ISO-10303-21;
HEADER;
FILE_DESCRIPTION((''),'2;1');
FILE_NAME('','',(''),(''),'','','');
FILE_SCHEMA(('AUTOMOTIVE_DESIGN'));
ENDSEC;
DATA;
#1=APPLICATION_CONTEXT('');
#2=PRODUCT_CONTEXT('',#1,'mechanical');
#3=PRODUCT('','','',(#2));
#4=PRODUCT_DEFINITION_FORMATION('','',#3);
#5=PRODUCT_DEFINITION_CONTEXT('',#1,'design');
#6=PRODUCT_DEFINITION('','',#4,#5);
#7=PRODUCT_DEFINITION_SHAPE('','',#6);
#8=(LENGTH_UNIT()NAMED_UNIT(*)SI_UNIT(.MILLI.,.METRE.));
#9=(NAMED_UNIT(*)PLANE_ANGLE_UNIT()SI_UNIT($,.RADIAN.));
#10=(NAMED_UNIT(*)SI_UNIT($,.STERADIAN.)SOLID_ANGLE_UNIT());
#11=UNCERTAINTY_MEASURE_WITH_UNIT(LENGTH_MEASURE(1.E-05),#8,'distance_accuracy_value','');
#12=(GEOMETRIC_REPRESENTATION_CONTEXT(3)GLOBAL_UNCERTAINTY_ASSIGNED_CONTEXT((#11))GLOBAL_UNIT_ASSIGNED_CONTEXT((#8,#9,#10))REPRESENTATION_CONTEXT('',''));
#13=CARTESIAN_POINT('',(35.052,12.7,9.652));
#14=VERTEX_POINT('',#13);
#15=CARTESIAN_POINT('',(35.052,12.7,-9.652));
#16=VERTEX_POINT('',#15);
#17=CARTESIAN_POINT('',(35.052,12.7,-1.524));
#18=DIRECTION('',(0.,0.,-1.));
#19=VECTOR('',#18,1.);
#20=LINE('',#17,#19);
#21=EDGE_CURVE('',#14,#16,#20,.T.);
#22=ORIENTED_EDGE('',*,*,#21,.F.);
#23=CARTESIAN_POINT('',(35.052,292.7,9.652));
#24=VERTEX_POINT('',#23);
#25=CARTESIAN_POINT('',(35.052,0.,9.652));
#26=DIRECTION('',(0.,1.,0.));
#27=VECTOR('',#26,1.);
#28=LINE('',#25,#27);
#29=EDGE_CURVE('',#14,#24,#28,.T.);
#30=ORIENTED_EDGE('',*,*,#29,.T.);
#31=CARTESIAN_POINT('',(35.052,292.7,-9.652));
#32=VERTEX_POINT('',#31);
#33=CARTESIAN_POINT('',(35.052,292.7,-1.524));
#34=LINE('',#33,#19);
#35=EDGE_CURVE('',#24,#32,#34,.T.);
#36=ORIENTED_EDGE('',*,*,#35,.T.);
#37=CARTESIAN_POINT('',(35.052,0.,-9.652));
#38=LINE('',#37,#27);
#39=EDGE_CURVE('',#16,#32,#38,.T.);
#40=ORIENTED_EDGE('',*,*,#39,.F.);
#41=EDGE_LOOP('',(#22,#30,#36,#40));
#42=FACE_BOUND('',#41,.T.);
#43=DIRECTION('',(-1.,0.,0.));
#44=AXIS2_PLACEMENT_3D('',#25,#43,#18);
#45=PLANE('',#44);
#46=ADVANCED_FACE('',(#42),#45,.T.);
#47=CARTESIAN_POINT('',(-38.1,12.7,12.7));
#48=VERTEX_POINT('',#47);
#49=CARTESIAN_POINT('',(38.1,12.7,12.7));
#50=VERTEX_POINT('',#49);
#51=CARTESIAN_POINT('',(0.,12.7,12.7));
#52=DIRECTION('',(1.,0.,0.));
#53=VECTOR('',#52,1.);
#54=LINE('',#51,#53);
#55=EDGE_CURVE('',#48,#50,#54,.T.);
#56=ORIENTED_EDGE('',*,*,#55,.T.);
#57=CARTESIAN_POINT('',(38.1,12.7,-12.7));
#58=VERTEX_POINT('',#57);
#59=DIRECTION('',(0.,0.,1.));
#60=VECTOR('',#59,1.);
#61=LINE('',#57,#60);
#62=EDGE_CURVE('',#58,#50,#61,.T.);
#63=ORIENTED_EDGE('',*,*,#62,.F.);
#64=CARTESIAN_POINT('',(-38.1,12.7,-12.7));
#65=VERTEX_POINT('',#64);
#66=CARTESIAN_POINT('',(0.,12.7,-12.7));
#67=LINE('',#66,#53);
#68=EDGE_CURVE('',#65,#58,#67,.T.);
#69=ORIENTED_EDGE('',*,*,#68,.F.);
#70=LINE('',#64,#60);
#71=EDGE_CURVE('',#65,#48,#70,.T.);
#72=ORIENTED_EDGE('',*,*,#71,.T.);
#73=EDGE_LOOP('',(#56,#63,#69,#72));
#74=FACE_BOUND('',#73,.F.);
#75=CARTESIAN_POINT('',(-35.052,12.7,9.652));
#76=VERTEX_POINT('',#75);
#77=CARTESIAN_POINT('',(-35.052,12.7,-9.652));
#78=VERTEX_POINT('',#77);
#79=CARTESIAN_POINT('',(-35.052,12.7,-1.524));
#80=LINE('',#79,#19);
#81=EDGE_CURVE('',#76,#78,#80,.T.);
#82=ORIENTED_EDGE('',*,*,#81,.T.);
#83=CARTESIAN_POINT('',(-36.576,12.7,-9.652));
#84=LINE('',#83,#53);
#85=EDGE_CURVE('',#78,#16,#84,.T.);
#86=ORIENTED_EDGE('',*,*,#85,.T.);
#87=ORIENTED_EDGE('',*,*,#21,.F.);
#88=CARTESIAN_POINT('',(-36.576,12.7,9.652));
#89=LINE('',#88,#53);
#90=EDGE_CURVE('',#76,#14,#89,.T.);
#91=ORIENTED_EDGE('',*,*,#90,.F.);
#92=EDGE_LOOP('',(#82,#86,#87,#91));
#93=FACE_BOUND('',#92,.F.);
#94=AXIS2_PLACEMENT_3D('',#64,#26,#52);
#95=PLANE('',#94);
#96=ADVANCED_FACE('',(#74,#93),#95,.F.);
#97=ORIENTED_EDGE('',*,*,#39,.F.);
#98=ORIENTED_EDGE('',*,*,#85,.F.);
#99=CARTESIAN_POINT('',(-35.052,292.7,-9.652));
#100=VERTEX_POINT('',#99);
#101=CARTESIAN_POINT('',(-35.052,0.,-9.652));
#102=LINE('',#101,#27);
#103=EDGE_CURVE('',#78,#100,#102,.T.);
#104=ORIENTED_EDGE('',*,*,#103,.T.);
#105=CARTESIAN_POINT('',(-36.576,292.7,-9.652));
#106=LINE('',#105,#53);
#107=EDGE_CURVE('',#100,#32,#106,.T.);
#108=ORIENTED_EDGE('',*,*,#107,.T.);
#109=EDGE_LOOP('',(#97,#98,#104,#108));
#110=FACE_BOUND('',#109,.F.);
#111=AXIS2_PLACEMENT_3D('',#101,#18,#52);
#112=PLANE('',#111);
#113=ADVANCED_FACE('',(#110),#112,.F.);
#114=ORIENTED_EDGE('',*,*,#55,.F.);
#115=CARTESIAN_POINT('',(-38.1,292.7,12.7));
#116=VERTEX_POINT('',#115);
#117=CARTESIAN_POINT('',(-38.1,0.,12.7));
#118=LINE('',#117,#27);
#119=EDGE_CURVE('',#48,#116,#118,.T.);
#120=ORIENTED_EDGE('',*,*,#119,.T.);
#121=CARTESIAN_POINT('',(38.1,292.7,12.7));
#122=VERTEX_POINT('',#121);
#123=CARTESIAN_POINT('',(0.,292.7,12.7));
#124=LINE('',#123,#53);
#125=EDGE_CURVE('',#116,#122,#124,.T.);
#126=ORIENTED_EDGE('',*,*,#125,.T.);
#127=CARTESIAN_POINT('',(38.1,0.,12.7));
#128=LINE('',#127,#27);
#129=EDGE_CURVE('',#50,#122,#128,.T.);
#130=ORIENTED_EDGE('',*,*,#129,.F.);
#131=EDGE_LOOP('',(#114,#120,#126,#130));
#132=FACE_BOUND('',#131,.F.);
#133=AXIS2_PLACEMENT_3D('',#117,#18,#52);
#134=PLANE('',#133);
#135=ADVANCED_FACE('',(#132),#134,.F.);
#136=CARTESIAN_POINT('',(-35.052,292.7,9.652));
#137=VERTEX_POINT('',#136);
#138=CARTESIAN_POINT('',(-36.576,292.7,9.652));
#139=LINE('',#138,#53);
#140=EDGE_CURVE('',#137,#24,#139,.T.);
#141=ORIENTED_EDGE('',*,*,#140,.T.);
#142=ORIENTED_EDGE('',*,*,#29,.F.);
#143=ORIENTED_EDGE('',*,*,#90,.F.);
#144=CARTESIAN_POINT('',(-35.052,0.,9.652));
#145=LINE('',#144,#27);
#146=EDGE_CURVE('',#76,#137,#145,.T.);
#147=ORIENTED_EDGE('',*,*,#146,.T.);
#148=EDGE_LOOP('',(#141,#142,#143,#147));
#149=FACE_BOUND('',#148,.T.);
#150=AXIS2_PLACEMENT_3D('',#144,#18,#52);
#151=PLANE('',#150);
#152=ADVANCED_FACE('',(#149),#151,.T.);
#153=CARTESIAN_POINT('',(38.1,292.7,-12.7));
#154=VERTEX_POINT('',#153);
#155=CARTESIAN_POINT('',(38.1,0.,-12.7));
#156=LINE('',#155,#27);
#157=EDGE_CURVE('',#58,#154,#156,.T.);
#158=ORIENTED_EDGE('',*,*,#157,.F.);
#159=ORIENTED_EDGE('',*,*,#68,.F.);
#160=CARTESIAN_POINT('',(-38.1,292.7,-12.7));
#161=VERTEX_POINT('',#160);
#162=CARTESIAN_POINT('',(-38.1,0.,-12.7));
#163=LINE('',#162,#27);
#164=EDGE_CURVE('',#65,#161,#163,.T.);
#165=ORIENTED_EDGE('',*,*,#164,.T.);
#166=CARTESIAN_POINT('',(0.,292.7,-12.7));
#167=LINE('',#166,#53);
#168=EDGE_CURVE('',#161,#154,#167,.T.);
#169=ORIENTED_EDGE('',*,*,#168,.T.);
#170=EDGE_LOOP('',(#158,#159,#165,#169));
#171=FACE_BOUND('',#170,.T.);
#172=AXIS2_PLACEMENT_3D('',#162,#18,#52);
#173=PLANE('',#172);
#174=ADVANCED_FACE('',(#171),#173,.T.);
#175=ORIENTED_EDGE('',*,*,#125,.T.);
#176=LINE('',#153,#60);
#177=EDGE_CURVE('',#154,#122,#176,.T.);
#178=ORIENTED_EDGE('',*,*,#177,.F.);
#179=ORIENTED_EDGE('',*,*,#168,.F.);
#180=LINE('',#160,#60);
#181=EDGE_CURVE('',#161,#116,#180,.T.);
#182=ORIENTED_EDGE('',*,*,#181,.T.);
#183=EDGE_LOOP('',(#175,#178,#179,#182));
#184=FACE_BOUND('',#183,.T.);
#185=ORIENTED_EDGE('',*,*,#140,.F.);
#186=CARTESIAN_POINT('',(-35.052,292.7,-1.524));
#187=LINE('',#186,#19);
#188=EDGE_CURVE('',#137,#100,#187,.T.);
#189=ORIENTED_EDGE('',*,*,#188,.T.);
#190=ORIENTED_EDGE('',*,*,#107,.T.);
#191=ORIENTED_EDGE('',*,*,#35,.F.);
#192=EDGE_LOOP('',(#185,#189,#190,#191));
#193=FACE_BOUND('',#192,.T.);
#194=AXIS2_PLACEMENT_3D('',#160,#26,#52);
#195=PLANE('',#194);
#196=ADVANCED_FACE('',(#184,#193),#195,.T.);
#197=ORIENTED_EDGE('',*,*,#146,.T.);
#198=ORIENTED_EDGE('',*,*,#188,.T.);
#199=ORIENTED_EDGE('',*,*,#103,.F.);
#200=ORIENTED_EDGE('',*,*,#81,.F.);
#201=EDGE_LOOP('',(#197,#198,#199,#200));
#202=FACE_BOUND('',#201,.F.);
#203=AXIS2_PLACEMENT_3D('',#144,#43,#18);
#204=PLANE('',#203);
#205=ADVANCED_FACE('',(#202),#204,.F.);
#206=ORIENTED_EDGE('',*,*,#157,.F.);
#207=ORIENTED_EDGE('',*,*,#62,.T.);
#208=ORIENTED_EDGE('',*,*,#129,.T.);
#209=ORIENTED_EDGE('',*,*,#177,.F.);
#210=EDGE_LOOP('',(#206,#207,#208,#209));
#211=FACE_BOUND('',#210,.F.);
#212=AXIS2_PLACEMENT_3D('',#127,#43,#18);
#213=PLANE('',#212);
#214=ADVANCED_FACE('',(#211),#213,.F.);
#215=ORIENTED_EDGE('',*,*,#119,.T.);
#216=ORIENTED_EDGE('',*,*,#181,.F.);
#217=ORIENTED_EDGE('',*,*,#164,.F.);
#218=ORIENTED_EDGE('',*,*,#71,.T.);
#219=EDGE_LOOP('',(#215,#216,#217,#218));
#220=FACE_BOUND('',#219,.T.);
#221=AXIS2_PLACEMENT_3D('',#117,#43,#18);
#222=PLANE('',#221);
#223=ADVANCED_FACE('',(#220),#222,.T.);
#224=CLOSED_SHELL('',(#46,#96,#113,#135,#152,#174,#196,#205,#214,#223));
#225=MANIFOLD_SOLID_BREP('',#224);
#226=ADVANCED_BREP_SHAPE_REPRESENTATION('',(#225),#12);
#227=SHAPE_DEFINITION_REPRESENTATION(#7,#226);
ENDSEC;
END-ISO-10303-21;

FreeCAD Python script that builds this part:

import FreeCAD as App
import Part
import Sketcher
from FreeCAD import Vector
Q = App.Units.Quantity


def add_polygon(sketch, points):
    """Adds a closed chain of lines whose ends are joined by coincident constraints."""
    first, n = sketch.GeometryCount, len(points)
    for a, b in zip(points, points[1:] + points[:1]):
        sketch.addGeometry(Part.LineSegment(App.Vector(*a, 0), App.Vector(*b, 0)), False)
    for i in range(n):
        sketch.addConstraint(Sketcher.Constraint("Coincident", first + i, 2, first + (i + 1) % n, 1))

doc = App.newDocument("Part")
params = doc.addObject("Spreadsheet::Sheet", "Params")
for row, (alias, value) in enumerate([
    ("sketch1_width", "3 in"),
    ("sketch1_height", "1 in"),
    ("sketch1_width2", "2.76 in"),
    ("sketch1_height2", "0.76 in"),
    ("pad1_length", "305.4 mm"),
    ("sketch2_width", "3 in"),
    ("sketch2_height", "1 in"),
    ("pocket1_length", "1 in"),
    ("sketch3_width", "3 in"),
    ("sketch3_height", "1 in"),
    ("pocket2_length", "1 in"),
], start=1):
    params.set(f"A{row}", alias)
    params.set(f"B{row}", "=" + value)
    params.setAlias(f"B{row}", alias)

body = doc.addObject("PartDesign::Body", "Body")

# Sketch on XZ plane
sketch1 = body.newObject("Sketcher::SketchObject", "Sketch")
sketch1.AttachmentSupport = (doc.getObject("XZ_Plane"), [""])
sketch1.MapMode = "FlatFace"
add_polygon(sketch1, [(-38.1, -12.7), (-38.1, 12.7), (38.1, 12.7), (38.1, -12.7)])  # lines 0-3
add_polygon(sketch1, [(35.052, 9.652), (-35.052, 9.652), (-35.052, -9.652), (35.052, -9.652)])  # lines 4-7
sketch1.addConstraint([
    Sketcher.Constraint("Vertical", 0),
    Sketcher.Constraint("Horizontal", 1),
    Sketcher.Constraint("Vertical", 2),
    Sketcher.Constraint("Horizontal", 3),
    Sketcher.Constraint("Horizontal", 4),
    Sketcher.Constraint("Vertical", 5),
    Sketcher.Constraint("Horizontal", 6),
    Sketcher.Constraint("Vertical", 7),
    Sketcher.Constraint("Symmetric", 0, 2, 2, 2, -1, 1),
    Sketcher.Constraint("Symmetric", 4, 2, 6, 2, -1, 1),
    Sketcher.Constraint("DistanceX", 1, 1, 1, 2, Q("3 in")),
    Sketcher.Constraint("DistanceY", 0, 1, 0, 2, Q("1 in")),
    Sketcher.Constraint("DistanceX", 4, 2, 4, 1, Q("2.76 in")),
    Sketcher.Constraint("DistanceY", 5, 2, 5, 1, Q("0.76 in")),
])
sketch1.setExpression("Constraints[18]", "Params.sketch1_width")
sketch1.setExpression("Constraints[19]", "Params.sketch1_height")
sketch1.setExpression("Constraints[20]", "Params.sketch1_width2")
sketch1.setExpression("Constraints[21]", "Params.sketch1_height2")
pad1 = body.newObject("PartDesign::Pad", "Pad")
pad1.Profile = sketch1
pad1.setExpression("Length", "Params.pad1_length")
pad1.Reversed = True

# Sketch on XY plane
sketch2 = body.newObject("Sketcher::SketchObject", "Sketch001")
sketch2.AttachmentSupport = (doc.getObject("XY_Plane"), [""])
sketch2.MapMode = "FlatFace"
sketch2.AttachmentOffset = App.Placement(Vector(0, 0, -0.5 * 25.4), App.Rotation())
add_polygon(sketch2, [(-38.1, 12.7), (-38.1, -12.7), (38.1, -12.7), (38.1, 12.7)])  # lines 0-3
sketch2.addConstraint([
    Sketcher.Constraint("Vertical", 0),
    Sketcher.Constraint("Horizontal", 1),
    Sketcher.Constraint("Vertical", 2),
    Sketcher.Constraint("Horizontal", 3),
    Sketcher.Constraint("Symmetric", 0, 2, 2, 2, -1, 1),
    Sketcher.Constraint("DistanceX", 1, 1, 1, 2, Q("3 in")),
    Sketcher.Constraint("DistanceY", 0, 2, 0, 1, Q("1 in")),
])
sketch2.setExpression("Constraints[9]", "Params.sketch2_width")
sketch2.setExpression("Constraints[10]", "Params.sketch2_height")
pocket1 = body.newObject("PartDesign::Pocket", "Pocket")
pocket1.Profile = sketch2
pocket1.setExpression("Length", "Params.pocket1_length")
pocket1.Reversed = True

# Sketch on XY plane
sketch3 = body.newObject("Sketcher::SketchObject", "Sketch002")
sketch3.AttachmentSupport = (doc.getObject("XY_Plane"), [""])
sketch3.MapMode = "FlatFace"
sketch3.AttachmentOffset = App.Placement(Vector(0, 0, -0.5 * 25.4), App.Rotation())
add_polygon(sketch3, [(-38.1, 318.1), (-38.1, 292.7), (38.1, 292.7), (38.1, 318.1)])  # lines 0-3
sketch3.addConstraint([
    Sketcher.Constraint("Vertical", 0),
    Sketcher.Constraint("Horizontal", 1),
    Sketcher.Constraint("Vertical", 2),
    Sketcher.Constraint("Horizontal", 3),
    Sketcher.Constraint("DistanceX", 1, 1, 1, 2, Q("3 in")),
    Sketcher.Constraint("DistanceY", 0, 2, 0, 1, Q("1 in")),
    Sketcher.Constraint("DistanceX", 0, 2, -1, 1, Q("1.5 in")),
    Sketcher.Constraint("DistanceY", -1, 1, 0, 2, Q("292.7 mm")),
])
sketch3.setExpression("Constraints[8]", "Params.sketch3_width")
sketch3.setExpression("Constraints[9]", "Params.sketch3_height")
pocket2 = body.newObject("PartDesign::Pocket", "Pocket001")
pocket2.Profile = sketch3
pocket2.setExpression("Length", "Params.pocket2_length")
pocket2.Reversed = True

doc.recompute()
